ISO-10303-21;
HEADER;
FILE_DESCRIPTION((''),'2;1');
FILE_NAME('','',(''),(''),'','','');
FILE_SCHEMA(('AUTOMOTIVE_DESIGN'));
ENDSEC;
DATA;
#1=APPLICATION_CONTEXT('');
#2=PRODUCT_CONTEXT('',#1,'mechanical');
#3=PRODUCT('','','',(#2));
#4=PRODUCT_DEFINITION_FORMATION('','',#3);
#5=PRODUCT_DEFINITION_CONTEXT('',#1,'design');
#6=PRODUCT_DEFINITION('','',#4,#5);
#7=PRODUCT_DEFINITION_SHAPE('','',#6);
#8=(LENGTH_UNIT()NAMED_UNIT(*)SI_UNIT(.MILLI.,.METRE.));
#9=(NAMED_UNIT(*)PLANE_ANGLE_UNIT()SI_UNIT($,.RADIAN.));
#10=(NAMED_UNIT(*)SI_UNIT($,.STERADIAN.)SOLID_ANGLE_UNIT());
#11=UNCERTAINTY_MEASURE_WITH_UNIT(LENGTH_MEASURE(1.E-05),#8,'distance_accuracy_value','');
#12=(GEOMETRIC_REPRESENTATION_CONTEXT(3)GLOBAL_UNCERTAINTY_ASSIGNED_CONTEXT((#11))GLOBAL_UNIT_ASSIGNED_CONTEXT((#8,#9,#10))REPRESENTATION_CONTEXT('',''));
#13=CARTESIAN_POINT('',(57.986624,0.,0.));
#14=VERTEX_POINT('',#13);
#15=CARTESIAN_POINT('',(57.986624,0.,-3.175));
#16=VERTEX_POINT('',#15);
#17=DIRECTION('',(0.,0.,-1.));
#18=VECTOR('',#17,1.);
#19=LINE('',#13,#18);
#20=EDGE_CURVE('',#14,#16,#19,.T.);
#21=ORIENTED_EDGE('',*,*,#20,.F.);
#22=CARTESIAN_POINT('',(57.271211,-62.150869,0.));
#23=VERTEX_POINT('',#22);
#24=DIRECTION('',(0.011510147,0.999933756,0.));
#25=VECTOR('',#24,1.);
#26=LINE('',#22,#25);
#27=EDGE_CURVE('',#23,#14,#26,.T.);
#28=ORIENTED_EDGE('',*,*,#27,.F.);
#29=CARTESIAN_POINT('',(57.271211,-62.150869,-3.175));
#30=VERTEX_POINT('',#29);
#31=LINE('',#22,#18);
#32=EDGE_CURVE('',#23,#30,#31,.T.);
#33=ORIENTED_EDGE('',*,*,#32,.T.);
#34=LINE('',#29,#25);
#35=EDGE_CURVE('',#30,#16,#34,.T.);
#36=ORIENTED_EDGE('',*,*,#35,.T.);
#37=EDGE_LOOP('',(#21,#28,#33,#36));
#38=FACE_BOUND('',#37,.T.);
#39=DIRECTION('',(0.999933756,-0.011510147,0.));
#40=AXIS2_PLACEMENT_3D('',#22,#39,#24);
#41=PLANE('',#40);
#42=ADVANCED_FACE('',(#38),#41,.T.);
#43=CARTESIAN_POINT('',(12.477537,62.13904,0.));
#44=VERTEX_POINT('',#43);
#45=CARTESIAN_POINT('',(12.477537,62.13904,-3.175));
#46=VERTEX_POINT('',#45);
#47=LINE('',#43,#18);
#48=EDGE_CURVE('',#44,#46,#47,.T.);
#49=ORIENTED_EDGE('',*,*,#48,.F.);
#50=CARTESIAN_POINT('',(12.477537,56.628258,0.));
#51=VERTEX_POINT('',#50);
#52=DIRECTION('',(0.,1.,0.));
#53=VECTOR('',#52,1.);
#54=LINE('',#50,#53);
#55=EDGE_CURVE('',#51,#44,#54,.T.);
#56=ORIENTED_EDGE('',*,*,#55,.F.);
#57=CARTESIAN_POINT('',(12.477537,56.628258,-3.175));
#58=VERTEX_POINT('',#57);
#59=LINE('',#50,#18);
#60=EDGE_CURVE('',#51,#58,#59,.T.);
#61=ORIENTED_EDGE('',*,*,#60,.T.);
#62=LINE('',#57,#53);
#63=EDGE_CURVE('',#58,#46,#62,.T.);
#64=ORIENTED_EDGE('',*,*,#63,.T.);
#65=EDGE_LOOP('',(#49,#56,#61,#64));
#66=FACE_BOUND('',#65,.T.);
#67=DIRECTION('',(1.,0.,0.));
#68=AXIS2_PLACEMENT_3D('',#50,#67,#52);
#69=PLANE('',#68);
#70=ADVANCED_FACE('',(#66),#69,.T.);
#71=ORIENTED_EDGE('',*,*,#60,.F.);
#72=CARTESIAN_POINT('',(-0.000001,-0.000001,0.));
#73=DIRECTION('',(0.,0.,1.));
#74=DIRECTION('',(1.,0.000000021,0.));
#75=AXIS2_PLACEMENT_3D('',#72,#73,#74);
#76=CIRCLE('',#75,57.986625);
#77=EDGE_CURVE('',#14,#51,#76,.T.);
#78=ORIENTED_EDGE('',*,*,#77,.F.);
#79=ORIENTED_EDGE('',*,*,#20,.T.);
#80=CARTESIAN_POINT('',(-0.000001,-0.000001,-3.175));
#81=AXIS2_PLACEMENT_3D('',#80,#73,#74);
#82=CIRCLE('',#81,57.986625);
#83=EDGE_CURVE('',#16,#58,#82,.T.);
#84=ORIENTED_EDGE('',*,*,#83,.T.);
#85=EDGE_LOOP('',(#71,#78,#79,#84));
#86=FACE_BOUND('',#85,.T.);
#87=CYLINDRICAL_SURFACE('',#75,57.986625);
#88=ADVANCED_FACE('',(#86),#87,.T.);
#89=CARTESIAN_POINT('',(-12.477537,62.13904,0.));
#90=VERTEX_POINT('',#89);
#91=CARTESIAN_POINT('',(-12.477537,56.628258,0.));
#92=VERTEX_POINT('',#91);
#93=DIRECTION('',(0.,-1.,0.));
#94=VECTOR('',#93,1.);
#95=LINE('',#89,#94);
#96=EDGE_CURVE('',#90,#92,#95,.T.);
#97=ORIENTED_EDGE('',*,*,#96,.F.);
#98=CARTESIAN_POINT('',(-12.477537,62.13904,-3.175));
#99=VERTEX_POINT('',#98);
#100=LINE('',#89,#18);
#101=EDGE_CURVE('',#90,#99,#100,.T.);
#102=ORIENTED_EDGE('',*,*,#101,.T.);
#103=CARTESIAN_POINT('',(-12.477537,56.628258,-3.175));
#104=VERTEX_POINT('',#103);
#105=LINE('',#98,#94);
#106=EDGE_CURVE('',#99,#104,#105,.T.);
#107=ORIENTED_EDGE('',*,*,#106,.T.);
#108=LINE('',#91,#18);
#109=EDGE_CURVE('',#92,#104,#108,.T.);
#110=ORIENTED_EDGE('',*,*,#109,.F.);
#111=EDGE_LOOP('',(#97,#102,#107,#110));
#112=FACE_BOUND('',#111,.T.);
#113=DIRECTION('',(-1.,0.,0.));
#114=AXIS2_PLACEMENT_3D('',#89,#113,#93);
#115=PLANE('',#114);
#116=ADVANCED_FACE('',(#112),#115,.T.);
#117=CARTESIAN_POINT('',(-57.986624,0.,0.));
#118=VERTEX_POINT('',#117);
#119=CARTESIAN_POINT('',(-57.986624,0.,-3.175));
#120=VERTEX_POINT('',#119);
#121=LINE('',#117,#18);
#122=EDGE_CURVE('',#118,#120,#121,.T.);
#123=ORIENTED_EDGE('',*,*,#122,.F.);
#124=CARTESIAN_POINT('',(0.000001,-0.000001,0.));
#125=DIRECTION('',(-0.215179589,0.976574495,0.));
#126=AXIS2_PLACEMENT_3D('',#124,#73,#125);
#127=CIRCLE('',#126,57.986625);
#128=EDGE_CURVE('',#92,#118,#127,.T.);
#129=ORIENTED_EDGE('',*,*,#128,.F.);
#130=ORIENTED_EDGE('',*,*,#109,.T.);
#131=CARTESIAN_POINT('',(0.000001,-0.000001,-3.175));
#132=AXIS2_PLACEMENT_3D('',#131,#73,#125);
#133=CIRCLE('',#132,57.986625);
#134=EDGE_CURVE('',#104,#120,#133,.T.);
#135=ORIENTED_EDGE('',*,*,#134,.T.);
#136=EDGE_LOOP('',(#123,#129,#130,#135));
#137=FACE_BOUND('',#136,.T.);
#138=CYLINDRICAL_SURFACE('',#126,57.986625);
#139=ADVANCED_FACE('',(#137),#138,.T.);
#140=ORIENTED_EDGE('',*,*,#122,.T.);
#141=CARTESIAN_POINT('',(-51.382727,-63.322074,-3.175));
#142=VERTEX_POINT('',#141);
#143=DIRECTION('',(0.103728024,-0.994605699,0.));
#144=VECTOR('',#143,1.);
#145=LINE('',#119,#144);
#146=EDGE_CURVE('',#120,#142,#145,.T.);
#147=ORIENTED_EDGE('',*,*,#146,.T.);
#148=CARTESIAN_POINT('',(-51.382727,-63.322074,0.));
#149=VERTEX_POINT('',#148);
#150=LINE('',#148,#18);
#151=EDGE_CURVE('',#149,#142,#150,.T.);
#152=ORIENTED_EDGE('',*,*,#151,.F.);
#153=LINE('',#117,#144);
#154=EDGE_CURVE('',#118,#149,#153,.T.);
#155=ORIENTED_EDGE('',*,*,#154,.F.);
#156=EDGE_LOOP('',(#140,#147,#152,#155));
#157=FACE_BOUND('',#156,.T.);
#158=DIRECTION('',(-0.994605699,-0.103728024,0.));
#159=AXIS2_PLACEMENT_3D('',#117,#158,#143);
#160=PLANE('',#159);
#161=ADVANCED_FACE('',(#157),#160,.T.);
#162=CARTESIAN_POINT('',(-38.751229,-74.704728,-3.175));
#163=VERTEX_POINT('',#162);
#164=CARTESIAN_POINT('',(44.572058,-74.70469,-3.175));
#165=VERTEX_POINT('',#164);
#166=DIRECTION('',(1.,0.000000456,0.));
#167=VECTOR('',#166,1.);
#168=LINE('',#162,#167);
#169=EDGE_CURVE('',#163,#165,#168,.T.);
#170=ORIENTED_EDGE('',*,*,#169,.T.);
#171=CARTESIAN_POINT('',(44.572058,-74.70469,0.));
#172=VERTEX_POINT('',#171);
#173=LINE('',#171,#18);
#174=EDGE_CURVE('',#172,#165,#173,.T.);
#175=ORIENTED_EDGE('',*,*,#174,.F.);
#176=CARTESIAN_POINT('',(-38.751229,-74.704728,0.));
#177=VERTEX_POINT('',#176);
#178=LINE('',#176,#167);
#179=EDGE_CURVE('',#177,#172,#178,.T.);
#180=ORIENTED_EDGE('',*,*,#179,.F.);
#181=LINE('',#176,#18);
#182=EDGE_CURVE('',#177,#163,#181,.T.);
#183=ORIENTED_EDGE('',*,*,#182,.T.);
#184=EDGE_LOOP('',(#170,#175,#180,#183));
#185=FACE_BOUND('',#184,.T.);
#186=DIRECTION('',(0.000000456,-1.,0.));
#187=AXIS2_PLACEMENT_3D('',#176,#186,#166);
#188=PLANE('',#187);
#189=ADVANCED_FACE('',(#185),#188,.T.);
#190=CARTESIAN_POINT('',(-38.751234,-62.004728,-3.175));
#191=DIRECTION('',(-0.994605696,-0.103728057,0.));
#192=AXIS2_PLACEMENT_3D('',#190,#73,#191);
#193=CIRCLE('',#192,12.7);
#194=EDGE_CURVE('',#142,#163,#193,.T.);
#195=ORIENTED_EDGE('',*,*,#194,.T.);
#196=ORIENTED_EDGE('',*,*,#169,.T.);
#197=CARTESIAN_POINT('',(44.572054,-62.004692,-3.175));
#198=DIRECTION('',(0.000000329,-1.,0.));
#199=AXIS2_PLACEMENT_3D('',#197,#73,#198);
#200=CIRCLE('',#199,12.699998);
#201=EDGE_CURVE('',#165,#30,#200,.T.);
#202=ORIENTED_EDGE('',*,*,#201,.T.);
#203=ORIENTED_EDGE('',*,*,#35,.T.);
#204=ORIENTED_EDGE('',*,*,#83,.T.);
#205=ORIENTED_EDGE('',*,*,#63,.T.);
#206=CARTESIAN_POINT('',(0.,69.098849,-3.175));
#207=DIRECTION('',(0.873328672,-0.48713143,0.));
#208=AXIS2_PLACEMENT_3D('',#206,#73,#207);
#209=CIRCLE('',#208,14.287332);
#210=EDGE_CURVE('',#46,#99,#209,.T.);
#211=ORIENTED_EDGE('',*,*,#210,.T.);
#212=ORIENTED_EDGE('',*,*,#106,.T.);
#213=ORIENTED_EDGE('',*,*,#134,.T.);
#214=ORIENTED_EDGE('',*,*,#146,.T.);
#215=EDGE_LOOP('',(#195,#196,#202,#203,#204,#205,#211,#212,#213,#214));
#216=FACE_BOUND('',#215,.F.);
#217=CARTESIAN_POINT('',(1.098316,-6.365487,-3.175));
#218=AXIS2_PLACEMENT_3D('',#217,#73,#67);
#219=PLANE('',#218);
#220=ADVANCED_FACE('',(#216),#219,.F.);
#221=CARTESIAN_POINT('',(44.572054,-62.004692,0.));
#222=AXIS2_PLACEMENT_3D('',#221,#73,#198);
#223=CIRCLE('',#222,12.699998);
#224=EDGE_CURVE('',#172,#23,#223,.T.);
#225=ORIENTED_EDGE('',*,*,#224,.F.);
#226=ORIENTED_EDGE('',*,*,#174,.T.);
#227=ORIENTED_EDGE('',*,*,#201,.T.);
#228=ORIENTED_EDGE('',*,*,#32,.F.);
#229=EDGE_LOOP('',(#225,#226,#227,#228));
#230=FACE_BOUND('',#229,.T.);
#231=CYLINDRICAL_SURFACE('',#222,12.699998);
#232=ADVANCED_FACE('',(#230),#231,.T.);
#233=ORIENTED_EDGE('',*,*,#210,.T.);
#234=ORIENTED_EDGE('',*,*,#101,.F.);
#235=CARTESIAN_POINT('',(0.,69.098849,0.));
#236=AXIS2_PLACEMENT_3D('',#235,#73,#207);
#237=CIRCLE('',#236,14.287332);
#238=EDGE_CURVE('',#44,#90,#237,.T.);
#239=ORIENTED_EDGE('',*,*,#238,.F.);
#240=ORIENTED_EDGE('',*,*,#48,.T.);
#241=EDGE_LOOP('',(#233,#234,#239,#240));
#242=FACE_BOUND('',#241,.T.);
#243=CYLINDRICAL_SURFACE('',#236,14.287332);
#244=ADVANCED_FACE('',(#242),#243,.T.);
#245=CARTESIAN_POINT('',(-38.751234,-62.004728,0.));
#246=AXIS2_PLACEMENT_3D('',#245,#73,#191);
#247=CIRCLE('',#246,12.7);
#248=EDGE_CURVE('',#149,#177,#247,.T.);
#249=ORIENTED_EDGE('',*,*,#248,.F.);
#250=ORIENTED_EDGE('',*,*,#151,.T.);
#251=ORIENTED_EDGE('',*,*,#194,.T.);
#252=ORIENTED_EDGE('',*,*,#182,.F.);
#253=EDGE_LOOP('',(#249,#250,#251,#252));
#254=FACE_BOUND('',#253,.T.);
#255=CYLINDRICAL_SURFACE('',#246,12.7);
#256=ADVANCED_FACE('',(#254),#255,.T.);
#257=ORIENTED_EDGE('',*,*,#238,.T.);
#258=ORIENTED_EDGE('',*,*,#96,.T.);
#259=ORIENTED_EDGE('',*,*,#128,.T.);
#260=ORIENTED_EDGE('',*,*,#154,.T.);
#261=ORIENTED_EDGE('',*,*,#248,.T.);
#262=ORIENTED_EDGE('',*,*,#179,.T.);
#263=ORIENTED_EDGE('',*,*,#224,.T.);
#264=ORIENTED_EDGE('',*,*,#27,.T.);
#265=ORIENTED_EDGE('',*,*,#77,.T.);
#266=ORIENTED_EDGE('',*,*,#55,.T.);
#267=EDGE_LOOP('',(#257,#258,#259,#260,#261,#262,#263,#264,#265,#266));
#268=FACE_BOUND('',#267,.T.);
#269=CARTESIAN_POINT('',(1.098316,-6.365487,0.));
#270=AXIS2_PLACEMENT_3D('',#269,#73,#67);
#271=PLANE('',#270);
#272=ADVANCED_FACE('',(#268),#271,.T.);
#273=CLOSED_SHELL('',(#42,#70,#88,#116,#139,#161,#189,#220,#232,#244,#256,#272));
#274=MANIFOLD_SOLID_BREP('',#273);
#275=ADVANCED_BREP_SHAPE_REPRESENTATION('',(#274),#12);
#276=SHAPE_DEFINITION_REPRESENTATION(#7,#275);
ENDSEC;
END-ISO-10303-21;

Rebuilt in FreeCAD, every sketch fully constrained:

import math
import FreeCAD as App
import Part
import Sketcher
Q = App.Units.Quantity

doc = App.newDocument("Part")
params = doc.addObject("Spreadsheet::Sheet", "Params")
for row, (alias, value) in enumerate([
    ("sketch1_radius", "0.5 in"),
    ("pad1_length", "0.125 in"),
], start=1):
    params.set(f"A{row}", alias)
    params.set(f"B{row}", "=" + value)
    params.setAlias(f"B{row}", alias)

body = doc.addObject("PartDesign::Body", "Body")

sketch1 = body.newObject("Sketcher::SketchObject", "Sketch")
sketch1.AttachmentSupport = (doc.getObject("XY_Plane"), [""])
sketch1.MapMode = "FlatFace"
sketch1.addGeometry(Part.ArcOfCircle(Part.Circle(App.Vector(-39, -62, 0), App.Vector(0, 0, 1), 13), math.radians(-174), math.radians(-90)), False)
sketch1.addGeometry(Part.LineSegment(App.Vector(-39, -75, 0), App.Vector(45, -75, 0)), False)
sketch1.addGeometry(Part.ArcOfCircle(Part.Circle(App.Vector(45, -62, 0), App.Vector(0, 0, 1), 13), math.radians(-90), math.radians(-1)), False)
sketch1.addGeometry(Part.LineSegment(App.Vector(57, -62, 0), App.Vector(58, 0, 0)), False)
sketch1.addGeometry(Part.ArcOfCircle(Part.Circle(App.Vector(0, 0, 0), App.Vector(0, 0, 1), 58), math.radians(0), math.radians(78)), False)
sketch1.addGeometry(Part.LineSegment(App.Vector(12, 57, 0), App.Vector(12, 62, 0)), False)
sketch1.addGeometry(Part.ArcOfCircle(Part.Circle(App.Vector(0, 69, 0), App.Vector(0, 0, 1), 14), math.radians(-29), math.radians(209)), False)
sketch1.addGeometry(Part.LineSegment(App.Vector(-12, 62, 0), App.Vector(-12, 57, 0)), False)
sketch1.addGeometry(Part.ArcOfCircle(Part.Circle(App.Vector(0, 0, 0), App.Vector(0, 0, 1), 58), math.radians(102), math.radians(180)), False)
sketch1.addGeometry(Part.LineSegment(App.Vector(-58, 0, 0), App.Vector(-51, -63, 0)), False)
sketch1.addConstraint(Sketcher.Constraint("Tangent", 0, 2, 1, 1))
sketch1.addConstraint(Sketcher.Constraint("Tangent", 1, 2, 2, 1))
sketch1.addConstraint(Sketcher.Constraint("Tangent", 2, 2, 3, 1))
sketch1.addConstraint(Sketcher.Constraint("Coincident", 3, 2, 4, 1))
sketch1.addConstraint(Sketcher.Constraint("Coincident", 4, 2, 5, 1))
sketch1.addConstraint(Sketcher.Constraint("Coincident", 5, 2, 6, 1))
sketch1.addConstraint(Sketcher.Constraint("Coincident", 6, 2, 7, 1))
sketch1.addConstraint(Sketcher.Constraint("Coincident", 7, 2, 8, 1))
sketch1.addConstraint(Sketcher.Constraint("Coincident", 8, 2, 9, 1))
sketch1.addConstraint(Sketcher.Constraint("Tangent", 9, 2, 0, 1))
sketch1.addConstraint(Sketcher.Constraint("Vertical", 5))
sketch1.addConstraint(Sketcher.Constraint("Vertical", 7))
sketch1.addConstraint(Sketcher.Constraint("Coincident", 4, 3, -1, 1))
sketch1.addConstraint(Sketcher.Constraint("Coincident", 8, 3, -1, 1))
sketch1.addConstraint(Sketcher.Constraint("Equal", 0, 2))
sketch1.addConstraint(Sketcher.Constraint("Equal", 4, 8))
sketch1.addConstraint(Sketcher.Constraint("Symmetric", 5, 2, 6, 2, -2))
sketch1.addConstraint(Sketcher.Constraint("PointOnObject", 3, 2, -1))
sketch1.addConstraint(Sketcher.Constraint("PointOnObject", 8, 2, -1))
sketch1.addConstraint(Sketcher.Constraint("Radius", 0, Q("0.5 in")))
sketch1.addConstraint(Sketcher.Constraint("Radius", 4, Q("57.986625 mm")))
sketch1.addConstraint(Sketcher.Constraint("Radius", 6, Q("14.287332 mm")))
sketch1.addConstraint(Sketcher.Constraint("DistanceY", 5, 1, 5, 2, Q("5.510782 mm")))
sketch1.addConstraint(Sketcher.Constraint("DistanceY", 2, 3, -1, 1, Q("62.004692 mm")))
sketch1.addConstraint(Sketcher.Constraint("DistanceY", -1, 1, 6, 3, Q("69.098849 mm")))
sketch1.addConstraint(Sketcher.Constraint("DistanceX", 0, 2, -1, 1, Q("38.751229 mm")))
sketch1.addConstraint(Sketcher.Constraint("DistanceX", -1, 1, 2, 2, Q("57.271211 mm")))
sketch1.addConstraint(Sketcher.Constraint("DistanceX", 0, 3, 2, 3, Q("83.323288 mm")))
sketch1.setExpression("Constraints[19]", "Params.sketch1_radius")
pad1 = body.newObject("PartDesign::Pad", "Pad")
pad1.Profile = sketch1
pad1.setExpression("Length", "Params.pad1_length")
pad1.Reversed = True

doc.recompute()
